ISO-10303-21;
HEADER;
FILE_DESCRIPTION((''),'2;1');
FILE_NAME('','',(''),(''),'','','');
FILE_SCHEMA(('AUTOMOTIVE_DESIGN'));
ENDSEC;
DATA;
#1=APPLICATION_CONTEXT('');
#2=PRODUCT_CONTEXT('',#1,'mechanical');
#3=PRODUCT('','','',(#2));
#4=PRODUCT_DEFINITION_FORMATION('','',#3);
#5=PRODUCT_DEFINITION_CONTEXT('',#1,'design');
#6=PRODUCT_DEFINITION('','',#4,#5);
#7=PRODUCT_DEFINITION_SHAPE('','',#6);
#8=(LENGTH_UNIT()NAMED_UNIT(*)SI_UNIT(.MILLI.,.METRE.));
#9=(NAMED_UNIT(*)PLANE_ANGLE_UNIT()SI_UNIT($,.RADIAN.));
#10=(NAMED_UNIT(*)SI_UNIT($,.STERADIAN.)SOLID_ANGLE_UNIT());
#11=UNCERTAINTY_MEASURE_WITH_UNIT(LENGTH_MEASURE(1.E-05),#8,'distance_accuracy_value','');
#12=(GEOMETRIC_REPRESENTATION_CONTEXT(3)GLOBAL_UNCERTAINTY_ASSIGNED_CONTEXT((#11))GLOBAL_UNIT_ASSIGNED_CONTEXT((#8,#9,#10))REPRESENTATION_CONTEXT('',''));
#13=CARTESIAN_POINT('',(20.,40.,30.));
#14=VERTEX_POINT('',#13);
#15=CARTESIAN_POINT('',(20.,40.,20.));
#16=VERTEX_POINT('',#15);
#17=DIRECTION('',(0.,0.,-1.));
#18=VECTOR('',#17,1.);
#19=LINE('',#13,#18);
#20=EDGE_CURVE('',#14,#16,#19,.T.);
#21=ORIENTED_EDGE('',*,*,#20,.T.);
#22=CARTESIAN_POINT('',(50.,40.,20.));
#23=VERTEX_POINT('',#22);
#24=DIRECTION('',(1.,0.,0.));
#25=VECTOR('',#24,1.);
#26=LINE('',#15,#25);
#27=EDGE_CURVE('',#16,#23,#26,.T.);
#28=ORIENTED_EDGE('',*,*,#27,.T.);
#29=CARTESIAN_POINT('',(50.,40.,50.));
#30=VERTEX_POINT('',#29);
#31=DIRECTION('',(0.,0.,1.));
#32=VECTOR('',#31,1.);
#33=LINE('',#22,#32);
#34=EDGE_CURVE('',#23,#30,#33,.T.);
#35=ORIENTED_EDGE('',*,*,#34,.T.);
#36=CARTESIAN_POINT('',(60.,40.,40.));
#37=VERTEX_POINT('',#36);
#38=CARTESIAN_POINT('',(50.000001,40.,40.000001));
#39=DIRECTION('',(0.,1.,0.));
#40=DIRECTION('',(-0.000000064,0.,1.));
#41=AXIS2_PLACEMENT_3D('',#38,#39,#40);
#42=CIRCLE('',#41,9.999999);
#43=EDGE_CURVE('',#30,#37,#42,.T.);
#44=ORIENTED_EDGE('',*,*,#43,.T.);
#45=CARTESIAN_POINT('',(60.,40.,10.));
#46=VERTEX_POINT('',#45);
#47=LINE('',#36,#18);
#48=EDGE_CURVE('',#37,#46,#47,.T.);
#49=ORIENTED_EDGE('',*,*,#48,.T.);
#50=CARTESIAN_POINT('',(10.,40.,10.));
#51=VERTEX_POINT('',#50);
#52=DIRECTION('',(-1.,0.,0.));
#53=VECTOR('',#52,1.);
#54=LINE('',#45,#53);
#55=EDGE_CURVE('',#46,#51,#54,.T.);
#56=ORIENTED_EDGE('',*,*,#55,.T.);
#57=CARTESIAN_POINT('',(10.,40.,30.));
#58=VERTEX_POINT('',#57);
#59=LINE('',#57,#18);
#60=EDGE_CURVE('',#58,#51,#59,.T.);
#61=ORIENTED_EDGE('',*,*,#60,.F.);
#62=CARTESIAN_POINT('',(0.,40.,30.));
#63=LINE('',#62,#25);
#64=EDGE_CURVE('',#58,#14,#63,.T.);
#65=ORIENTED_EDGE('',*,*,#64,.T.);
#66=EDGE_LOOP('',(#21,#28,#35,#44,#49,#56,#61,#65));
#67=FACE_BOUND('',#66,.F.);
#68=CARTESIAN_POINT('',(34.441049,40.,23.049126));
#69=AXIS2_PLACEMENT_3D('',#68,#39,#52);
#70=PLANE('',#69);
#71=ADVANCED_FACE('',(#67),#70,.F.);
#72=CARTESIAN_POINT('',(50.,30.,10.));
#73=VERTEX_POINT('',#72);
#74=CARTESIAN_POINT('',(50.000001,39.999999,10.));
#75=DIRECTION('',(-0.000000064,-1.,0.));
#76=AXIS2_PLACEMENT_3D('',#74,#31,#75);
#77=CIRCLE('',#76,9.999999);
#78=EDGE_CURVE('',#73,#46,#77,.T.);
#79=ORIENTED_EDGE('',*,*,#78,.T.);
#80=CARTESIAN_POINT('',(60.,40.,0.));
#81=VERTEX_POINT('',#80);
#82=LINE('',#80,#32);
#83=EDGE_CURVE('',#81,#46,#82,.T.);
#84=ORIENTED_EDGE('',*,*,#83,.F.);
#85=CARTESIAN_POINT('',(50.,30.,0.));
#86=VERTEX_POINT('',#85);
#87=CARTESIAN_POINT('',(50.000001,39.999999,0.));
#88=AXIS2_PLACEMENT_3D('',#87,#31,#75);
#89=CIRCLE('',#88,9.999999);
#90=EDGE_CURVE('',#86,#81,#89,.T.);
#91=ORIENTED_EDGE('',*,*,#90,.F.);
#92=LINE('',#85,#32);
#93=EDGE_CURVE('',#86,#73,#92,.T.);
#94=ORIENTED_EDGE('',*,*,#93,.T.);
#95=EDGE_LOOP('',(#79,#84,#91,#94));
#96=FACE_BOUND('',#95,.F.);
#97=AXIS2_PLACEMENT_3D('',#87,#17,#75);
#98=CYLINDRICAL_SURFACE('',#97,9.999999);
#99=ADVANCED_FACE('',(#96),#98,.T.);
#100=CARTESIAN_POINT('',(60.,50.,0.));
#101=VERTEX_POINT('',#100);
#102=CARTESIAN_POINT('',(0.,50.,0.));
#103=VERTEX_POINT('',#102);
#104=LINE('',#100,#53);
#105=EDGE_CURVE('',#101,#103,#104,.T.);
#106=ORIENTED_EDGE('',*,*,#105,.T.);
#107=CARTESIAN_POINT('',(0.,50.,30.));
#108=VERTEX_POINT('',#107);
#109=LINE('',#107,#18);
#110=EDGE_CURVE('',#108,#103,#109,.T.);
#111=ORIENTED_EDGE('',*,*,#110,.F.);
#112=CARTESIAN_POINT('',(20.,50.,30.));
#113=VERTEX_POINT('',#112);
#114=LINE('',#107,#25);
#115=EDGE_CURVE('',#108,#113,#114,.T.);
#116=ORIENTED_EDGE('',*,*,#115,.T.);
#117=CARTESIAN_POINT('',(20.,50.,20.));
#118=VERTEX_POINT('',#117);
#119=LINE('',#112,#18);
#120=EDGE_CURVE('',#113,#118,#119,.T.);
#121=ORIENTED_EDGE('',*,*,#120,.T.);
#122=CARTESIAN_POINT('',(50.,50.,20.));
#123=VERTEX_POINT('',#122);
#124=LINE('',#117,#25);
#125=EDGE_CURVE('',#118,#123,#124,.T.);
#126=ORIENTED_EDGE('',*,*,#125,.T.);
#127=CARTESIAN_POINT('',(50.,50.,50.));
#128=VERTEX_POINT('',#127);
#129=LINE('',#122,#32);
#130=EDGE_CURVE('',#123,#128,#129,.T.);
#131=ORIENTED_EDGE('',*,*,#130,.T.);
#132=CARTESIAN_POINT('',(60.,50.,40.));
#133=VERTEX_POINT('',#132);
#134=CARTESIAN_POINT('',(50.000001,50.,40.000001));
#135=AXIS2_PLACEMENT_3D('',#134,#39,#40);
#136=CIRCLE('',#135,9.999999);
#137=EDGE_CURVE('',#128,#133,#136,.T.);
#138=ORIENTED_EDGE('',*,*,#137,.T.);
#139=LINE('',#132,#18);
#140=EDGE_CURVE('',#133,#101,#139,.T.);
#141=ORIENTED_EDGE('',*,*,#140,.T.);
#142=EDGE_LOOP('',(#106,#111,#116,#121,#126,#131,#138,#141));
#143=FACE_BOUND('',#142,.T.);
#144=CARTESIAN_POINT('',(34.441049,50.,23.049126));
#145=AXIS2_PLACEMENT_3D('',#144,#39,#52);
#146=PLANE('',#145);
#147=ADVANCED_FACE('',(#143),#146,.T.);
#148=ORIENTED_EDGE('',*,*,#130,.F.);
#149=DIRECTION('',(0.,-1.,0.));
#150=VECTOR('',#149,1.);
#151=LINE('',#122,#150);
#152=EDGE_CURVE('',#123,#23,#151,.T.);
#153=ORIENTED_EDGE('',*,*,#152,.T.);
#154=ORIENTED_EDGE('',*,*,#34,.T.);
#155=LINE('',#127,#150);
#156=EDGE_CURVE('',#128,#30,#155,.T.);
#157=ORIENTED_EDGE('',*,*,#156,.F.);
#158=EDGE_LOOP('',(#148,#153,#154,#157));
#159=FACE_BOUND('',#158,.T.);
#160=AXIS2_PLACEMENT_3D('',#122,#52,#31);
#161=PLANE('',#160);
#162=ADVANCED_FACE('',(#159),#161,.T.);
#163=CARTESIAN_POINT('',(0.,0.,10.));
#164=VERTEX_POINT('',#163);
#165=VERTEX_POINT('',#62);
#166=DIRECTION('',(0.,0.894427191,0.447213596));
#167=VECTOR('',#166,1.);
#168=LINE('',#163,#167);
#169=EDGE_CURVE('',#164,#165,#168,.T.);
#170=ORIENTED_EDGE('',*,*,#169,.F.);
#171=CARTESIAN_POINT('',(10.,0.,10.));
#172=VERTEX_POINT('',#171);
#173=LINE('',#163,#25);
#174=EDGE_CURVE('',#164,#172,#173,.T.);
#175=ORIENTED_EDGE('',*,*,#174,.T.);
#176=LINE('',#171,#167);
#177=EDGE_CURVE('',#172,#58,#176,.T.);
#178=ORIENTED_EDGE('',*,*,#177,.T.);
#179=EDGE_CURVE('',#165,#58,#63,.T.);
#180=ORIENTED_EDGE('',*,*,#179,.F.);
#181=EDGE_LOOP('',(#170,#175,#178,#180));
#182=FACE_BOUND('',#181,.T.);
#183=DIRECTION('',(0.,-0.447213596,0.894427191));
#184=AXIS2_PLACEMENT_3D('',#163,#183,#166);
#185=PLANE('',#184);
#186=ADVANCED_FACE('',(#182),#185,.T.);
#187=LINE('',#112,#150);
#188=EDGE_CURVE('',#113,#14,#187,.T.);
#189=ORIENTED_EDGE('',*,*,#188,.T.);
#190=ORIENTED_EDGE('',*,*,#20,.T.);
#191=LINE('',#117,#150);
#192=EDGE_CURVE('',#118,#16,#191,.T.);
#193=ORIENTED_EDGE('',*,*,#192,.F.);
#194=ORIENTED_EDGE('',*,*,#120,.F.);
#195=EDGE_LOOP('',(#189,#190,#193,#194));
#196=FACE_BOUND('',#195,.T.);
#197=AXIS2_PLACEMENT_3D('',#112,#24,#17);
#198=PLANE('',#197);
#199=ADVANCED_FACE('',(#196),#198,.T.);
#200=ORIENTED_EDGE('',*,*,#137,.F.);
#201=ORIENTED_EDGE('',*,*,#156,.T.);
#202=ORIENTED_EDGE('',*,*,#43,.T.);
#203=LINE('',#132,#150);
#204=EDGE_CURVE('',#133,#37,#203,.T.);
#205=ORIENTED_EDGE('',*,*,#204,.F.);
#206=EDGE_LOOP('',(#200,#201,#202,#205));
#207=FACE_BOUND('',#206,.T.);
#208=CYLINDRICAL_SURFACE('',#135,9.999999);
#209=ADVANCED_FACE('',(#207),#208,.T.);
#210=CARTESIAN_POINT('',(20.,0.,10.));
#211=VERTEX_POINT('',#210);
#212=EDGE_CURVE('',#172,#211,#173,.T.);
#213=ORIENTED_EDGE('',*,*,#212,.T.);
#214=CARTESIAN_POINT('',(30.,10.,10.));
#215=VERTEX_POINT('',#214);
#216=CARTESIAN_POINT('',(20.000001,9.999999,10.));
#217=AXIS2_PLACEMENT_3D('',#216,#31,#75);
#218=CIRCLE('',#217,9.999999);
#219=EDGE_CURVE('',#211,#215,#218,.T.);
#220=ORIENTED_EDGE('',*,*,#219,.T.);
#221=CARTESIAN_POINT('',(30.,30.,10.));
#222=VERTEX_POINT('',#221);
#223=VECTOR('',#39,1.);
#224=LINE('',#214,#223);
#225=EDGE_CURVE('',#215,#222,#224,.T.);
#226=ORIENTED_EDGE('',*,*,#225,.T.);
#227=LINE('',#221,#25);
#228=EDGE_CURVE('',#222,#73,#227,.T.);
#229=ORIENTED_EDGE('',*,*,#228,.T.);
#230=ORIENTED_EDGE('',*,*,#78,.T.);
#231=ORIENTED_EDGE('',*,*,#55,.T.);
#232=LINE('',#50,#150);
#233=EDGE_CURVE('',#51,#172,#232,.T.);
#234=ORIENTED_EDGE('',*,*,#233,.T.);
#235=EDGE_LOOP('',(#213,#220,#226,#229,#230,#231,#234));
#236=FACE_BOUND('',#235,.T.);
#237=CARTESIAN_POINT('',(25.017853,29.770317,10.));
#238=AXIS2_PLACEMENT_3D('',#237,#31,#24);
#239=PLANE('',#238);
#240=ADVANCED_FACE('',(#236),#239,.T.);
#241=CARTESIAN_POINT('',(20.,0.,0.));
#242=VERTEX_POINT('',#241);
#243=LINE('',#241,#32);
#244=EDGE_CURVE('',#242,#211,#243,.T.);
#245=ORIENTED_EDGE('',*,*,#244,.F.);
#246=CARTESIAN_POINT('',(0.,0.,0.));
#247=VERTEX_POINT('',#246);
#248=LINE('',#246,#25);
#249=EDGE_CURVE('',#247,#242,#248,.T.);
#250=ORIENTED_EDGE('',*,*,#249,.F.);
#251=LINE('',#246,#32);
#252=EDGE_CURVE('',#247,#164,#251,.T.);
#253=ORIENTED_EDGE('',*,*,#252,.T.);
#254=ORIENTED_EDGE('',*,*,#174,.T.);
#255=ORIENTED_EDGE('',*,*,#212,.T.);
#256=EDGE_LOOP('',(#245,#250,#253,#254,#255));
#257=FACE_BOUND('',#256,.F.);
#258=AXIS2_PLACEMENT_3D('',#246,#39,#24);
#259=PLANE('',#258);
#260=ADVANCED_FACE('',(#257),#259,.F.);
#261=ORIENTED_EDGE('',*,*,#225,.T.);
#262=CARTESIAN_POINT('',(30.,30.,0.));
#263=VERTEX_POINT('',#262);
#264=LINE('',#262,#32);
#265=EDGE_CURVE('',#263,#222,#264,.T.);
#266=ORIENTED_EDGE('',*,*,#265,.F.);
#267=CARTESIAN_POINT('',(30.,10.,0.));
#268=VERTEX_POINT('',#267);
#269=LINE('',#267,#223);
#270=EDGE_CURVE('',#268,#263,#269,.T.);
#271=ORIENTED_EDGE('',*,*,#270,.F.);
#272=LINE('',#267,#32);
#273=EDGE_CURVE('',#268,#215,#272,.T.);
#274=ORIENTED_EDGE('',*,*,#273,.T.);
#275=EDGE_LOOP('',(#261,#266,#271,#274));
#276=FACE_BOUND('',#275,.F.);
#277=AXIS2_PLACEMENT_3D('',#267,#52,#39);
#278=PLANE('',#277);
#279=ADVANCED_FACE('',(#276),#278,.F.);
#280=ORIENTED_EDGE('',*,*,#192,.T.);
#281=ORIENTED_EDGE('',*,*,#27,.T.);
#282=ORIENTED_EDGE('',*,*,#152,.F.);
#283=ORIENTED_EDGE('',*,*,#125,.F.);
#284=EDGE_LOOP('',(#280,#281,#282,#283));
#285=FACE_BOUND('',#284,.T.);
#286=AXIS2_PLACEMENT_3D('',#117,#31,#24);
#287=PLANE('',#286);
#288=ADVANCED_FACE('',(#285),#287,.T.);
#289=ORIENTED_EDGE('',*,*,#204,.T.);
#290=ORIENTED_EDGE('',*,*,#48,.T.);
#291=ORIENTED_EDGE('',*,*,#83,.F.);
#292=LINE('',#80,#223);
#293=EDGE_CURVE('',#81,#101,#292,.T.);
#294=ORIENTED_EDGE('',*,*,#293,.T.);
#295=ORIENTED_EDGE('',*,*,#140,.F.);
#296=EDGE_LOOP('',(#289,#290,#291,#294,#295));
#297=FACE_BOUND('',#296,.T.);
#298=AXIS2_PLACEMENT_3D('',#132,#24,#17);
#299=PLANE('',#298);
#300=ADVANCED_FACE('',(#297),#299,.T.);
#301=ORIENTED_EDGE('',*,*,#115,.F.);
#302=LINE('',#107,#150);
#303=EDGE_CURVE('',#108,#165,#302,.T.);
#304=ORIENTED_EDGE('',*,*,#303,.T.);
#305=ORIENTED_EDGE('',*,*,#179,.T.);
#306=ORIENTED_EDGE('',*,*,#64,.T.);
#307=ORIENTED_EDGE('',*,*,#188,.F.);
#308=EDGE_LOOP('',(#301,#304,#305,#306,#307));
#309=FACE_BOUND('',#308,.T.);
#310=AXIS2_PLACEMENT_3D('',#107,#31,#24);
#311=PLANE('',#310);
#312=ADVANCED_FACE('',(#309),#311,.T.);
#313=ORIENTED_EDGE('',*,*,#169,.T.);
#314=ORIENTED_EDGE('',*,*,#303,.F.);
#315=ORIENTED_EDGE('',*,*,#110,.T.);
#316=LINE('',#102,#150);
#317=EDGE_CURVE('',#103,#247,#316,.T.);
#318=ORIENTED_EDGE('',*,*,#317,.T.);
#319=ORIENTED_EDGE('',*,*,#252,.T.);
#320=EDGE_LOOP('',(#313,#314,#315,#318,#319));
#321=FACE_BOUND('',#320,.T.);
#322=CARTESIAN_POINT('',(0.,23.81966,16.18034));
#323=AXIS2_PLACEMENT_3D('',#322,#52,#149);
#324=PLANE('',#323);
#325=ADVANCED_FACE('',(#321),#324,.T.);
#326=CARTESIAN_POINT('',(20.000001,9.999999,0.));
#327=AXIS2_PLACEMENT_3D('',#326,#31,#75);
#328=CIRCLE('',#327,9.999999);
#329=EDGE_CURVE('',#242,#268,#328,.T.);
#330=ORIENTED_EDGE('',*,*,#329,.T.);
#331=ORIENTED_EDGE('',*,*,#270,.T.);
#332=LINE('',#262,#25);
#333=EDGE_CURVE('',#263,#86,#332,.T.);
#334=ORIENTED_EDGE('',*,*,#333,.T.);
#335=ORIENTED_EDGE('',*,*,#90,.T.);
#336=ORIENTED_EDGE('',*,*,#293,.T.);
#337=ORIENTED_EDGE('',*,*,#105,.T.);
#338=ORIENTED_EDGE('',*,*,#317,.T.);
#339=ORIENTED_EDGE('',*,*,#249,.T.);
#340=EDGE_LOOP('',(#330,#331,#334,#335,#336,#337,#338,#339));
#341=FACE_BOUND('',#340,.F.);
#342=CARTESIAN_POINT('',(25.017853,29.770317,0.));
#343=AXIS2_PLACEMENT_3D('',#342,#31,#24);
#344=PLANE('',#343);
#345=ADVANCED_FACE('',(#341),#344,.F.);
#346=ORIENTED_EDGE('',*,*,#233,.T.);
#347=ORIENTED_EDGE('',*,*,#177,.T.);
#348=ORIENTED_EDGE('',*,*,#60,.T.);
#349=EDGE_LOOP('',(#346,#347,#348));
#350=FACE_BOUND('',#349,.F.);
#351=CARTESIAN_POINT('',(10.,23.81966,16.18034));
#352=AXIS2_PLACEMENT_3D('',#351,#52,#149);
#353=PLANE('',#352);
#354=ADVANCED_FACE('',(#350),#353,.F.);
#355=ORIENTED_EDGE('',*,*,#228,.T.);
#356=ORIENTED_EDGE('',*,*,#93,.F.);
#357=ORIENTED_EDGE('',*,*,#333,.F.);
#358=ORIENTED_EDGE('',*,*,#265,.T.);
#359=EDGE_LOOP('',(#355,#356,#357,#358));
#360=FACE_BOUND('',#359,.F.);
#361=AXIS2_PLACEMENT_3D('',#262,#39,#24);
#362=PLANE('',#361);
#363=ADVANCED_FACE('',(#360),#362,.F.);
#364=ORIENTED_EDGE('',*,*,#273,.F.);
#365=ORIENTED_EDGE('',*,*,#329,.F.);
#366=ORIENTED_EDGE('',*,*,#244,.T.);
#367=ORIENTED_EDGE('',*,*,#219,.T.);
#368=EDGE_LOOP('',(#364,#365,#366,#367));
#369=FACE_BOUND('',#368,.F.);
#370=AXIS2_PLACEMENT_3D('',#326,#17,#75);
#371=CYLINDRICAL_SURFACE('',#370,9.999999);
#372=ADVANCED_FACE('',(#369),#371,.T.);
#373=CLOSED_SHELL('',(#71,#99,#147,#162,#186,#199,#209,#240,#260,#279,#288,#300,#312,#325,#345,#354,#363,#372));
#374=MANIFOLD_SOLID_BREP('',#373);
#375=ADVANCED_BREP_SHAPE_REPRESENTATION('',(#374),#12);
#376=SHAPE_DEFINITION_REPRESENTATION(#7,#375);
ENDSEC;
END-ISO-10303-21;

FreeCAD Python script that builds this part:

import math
import FreeCAD as App
import Part
import Sketcher


def add_polygon(sketch, points):
    """Adds a closed chain of lines whose ends are joined by coincident constraints."""
    first, n = sketch.GeometryCount, len(points)
    for a, b in zip(points, points[1:] + points[:1]):
        sketch.addGeometry(Part.LineSegment(App.Vector(*a, 0), App.Vector(*b, 0)), False)
    for i in range(n):
        sketch.addConstraint(Sketcher.Constraint("Coincident", first + i, 2, first + (i + 1) % n, 1))

doc = App.newDocument("Part")
body = doc.addObject("PartDesign::Body", "Body")

sketch1 = body.newObject("Sketcher::SketchObject", "Sketch")
sketch1.AttachmentSupport = (doc.getObject("XY_Plane"), [""])
sketch1.MapMode = "FlatFace"
sketch1.addGeometry(Part.LineSegment(App.Vector(0, 50, 0), App.Vector(0, 0, 0)), False)
sketch1.addGeometry(Part.LineSegment(App.Vector(0, 0, 0), App.Vector(20, 0, 0)), False)
sketch1.addGeometry(Part.ArcOfCircle(Part.Circle(App.Vector(20.000001, 9.999999, 0), App.Vector(0, 0, 1), 9.999999), math.radians(-90.000004), math.radians(0.000004)), False)
sketch1.addGeometry(Part.LineSegment(App.Vector(30, 10, 0), App.Vector(30, 30, 0)), False)
sketch1.addGeometry(Part.LineSegment(App.Vector(30, 30, 0), App.Vector(50, 30, 0)), False)
sketch1.addGeometry(Part.ArcOfCircle(Part.Circle(App.Vector(50.000001, 39.999999, 0), App.Vector(0, 0, 1), 9.999999), math.radians(-90.000004), math.radians(0.000004)), False)
sketch1.addGeometry(Part.LineSegment(App.Vector(60, 40, 0), App.Vector(60, 50, 0)), False)
sketch1.addGeometry(Part.LineSegment(App.Vector(60, 50, 0), App.Vector(0, 50, 0)), False)
sketch1.addConstraint(Sketcher.Constraint("Coincident", 0, 2, 1, 1))
sketch1.addConstraint(Sketcher.Constraint("Tangent", 1, 2, 2, 1))
sketch1.addConstraint(Sketcher.Constraint("Tangent", 2, 2, 3, 1))
sketch1.addConstraint(Sketcher.Constraint("Coincident", 3, 2, 4, 1))
sketch1.addConstraint(Sketcher.Constraint("Tangent", 4, 2, 5, 1))
sketch1.addConstraint(Sketcher.Constraint("Tangent", 5, 2, 6, 1))
sketch1.addConstraint(Sketcher.Constraint("Coincident", 6, 2, 7, 1))
sketch1.addConstraint(Sketcher.Constraint("Coincident", 7, 2, 0, 1))
sketch1.addConstraint(Sketcher.Constraint("Vertical", 0))
sketch1.addConstraint(Sketcher.Constraint("Horizontal", 1))
sketch1.addConstraint(Sketcher.Constraint("Vertical", 3))
sketch1.addConstraint(Sketcher.Constraint("Horizontal", 4))
sketch1.addConstraint(Sketcher.Constraint("Vertical", 6))
sketch1.addConstraint(Sketcher.Constraint("Horizontal", 7))
sketch1.addConstraint(Sketcher.Constraint("Coincident", 0, 2, -1, 1))
sketch1.addConstraint(Sketcher.Constraint("Equal", 2, 5))
sketch1.addConstraint(Sketcher.Constraint("Equal", 1, 4))
sketch1.addConstraint(Sketcher.Constraint("Equal", 4, 3))
sketch1.addConstraint(Sketcher.Constraint("Radius", 2, 9.999999))
sketch1.addConstraint(Sketcher.Constraint("DistanceX", 1, 1, 1, 2, 20.0))
sketch1.addConstraint(Sketcher.Constraint("DistanceY", 0, 2, 0, 1, 50.0))
pad1 = body.newObject("PartDesign::Pad", "Pad")
pad1.Profile = sketch1
pad1.Length = 10

sketch2 = body.newObject("Sketcher::SketchObject", "Sketch001")
sketch2.AttachmentSupport = (doc.getObject("XZ_Plane"), [""])
sketch2.MapMode = "FlatFace"
sketch2.AttachmentOffset = App.Placement(App.Vector(0, 0, -50), App.Rotation())
sketch2.addGeometry(Part.LineSegment(App.Vector(60, 10, 0), App.Vector(0, 10, 0)), False)
sketch2.addGeometry(Part.LineSegment(App.Vector(0, 10, 0), App.Vector(0, 30, 0)), False)
sketch2.addGeometry(Part.LineSegment(App.Vector(0, 30, 0), App.Vector(20, 30, 0)), False)
sketch2.addGeometry(Part.LineSegment(App.Vector(20, 30, 0), App.Vector(20, 20, 0)), False)
sketch2.addGeometry(Part.LineSegment(App.Vector(20, 20, 0), App.Vector(50, 20, 0)), False)
sketch2.addGeometry(Part.LineSegment(App.Vector(50, 20, 0), App.Vector(50, 50, 0)), False)
sketch2.addGeometry(Part.ArcOfCircle(Part.Circle(App.Vector(50.000001, 40.000001, 0), App.Vector(0, 0, 1), 9.999999), math.radians(-0.000004), math.radians(90.000004)), False)
sketch2.addGeometry(Part.LineSegment(App.Vector(60, 40, 0), App.Vector(60, 10, 0)), False)
sketch2.addConstraint(Sketcher.Constraint("Coincident", 0, 2, 1, 1))
sketch2.addConstraint(Sketcher.Constraint("Coincident", 1, 2, 2, 1))
sketch2.addConstraint(Sketcher.Constraint("Coincident", 2, 2, 3, 1))
sketch2.addConstraint(Sketcher.Constraint("Coincident", 3, 2, 4, 1))
sketch2.addConstraint(Sketcher.Constraint("Coincident", 4, 2, 5, 1))
sketch2.addConstraint(Sketcher.Constraint("Coincident", 5, 2, 6, 2))
sketch2.addConstraint(Sketcher.Constraint("Tangent", 6, 1, 7, 1))
sketch2.addConstraint(Sketcher.Constraint("Coincident", 7, 2, 0, 1))
sketch2.addConstraint(Sketcher.Constraint("Horizontal", 0))
sketch2.addConstraint(Sketcher.Constraint("Vertical", 1))
sketch2.addConstraint(Sketcher.Constraint("Horizontal", 2))
sketch2.addConstraint(Sketcher.Constraint("Vertical", 3))
sketch2.addConstraint(Sketcher.Constraint("Horizontal", 4))
sketch2.addConstraint(Sketcher.Constraint("Vertical", 5))
sketch2.addConstraint(Sketcher.Constraint("Vertical", 7))
sketch2.addConstraint(Sketcher.Constraint("PointOnObject", 0, 2, -2))
sketch2.addConstraint(Sketcher.Constraint("Vertical", 6, 3, 4, 2))
sketch2.addConstraint(Sketcher.Constraint("Equal", 2, 1))
sketch2.addConstraint(Sketcher.Constraint("Equal", 4, 5))
sketch2.addConstraint(Sketcher.Constraint("Equal", 5, 7))
sketch2.addConstraint(Sketcher.Constraint("Radius", 6, 9.999999))
sketch2.addConstraint(Sketcher.Constraint("DistanceX", 0, 2, 0, 1, 60.0))
sketch2.addConstraint(Sketcher.Constraint("DistanceX", 2, 1, 2, 2, 20.0))
sketch2.addConstraint(Sketcher.Constraint("DistanceY", -1, 1, 6, 3, 40.000001))
pad2 = body.newObject("PartDesign::Pad", "Pad001")
pad2.Profile = sketch2
pad2.Length = 10

sketch3 = body.newObject("Sketcher::SketchObject", "Sketch002")
sketch3.AttachmentSupport = (doc.getObject("YZ_Plane"), [""])
sketch3.MapMode = "FlatFace"
add_polygon(sketch3, [(0, 10), (40, 30), (40, 10)])
sketch3.addConstraint(Sketcher.Constraint("Vertical", 1))
sketch3.addConstraint(Sketcher.Constraint("Horizontal", 2))
sketch3.addConstraint(Sketcher.Constraint("PointOnObject", 2, 2, -2))
sketch3.addConstraint(Sketcher.Constraint("DistanceX", 2, 2, 2, 1, 40.0))
sketch3.addConstraint(Sketcher.Constraint("DistanceY", 1, 2, 1, 1, 20.0))
sketch3.addConstraint(Sketcher.Constraint("DistanceY", -1, 1, 0, 2, 30.0))
pad3 = body.newObject("PartDesign::Pad", "Pad002")
pad3.Profile = sketch3
pad3.Length = 10

doc.recompute()
